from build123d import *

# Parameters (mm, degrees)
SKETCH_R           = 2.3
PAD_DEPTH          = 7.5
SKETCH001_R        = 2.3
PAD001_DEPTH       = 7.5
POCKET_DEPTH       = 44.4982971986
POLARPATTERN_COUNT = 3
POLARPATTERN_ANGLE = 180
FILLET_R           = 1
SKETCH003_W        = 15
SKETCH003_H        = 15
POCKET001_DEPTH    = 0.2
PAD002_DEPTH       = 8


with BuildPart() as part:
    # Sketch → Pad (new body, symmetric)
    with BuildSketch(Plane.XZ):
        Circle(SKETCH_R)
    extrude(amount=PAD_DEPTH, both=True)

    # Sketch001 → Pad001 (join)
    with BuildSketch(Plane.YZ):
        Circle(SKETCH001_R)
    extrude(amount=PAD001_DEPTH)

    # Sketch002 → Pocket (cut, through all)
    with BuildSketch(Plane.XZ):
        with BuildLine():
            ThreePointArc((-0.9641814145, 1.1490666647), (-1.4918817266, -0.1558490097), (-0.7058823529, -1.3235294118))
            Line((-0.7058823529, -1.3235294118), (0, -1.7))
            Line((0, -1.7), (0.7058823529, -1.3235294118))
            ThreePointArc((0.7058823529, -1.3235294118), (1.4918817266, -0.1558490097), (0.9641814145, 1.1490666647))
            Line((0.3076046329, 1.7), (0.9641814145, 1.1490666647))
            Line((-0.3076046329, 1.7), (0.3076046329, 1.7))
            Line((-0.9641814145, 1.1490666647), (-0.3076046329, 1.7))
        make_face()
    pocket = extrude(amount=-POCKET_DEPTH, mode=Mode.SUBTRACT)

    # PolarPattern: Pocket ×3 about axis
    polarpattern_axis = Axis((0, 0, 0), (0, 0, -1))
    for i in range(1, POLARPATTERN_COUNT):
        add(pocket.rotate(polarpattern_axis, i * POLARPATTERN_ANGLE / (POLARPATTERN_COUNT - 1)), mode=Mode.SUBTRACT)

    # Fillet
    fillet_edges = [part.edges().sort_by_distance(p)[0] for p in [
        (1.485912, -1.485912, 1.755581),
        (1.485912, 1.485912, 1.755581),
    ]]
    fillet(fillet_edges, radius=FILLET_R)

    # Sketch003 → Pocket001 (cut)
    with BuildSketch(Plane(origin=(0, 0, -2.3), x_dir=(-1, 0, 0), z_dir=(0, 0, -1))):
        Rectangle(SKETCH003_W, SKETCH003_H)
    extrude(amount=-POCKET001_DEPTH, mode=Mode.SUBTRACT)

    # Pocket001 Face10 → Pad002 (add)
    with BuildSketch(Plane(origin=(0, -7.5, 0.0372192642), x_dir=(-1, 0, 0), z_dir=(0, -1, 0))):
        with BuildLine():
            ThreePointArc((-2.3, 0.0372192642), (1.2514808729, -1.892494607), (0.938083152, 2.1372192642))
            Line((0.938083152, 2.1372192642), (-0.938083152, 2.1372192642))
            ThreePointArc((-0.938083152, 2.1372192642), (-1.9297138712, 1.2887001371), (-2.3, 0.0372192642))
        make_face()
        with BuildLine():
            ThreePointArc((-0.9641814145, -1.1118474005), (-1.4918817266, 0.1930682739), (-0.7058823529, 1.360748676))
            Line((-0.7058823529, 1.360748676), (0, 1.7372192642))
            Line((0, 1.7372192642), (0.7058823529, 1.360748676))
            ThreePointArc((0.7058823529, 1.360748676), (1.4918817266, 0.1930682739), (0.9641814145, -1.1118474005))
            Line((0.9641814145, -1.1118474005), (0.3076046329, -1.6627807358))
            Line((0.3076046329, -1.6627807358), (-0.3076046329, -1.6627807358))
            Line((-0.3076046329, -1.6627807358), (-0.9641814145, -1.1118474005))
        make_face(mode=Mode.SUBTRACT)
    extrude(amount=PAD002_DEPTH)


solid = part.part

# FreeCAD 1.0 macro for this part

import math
import FreeCAD as App
import Part
import Sketcher
from FreeCAD import Vector
Q = App.Units.Quantity


def edges_at(feature, points):
    """Names of the edges that pass closest to the given points."""
    edges = feature.Shape.Edges
    near = lambda p: min(range(len(edges)), key=lambda i: edges[i].distToShape(Part.Vertex(*p))[0])
    return sorted({f"Edge{near(p) + 1}" for p in points})


def add_polygon(sketch, points):
    """Adds a closed chain of lines whose ends are joined by coincident constraints."""
    first, n = sketch.GeometryCount, len(points)
    for a, b in zip(points, points[1:] + points[:1]):
        sketch.addGeometry(Part.LineSegment(App.Vector(*a, 0), App.Vector(*b, 0)), False)
    for i in range(n):
        sketch.addConstraint(Sketcher.Constraint("Coincident", first + i, 2, first + (i + 1) % n, 1))

doc = App.newDocument("Part")
body = doc.addObject("PartDesign::Body", "Body")

sketch1 = doc.addObject("Sketcher::SketchObject", "Sketch")
body.addObject(sketch1)
sketch1.AttachmentSupport = (doc.XZ_Plane, [""])
sketch1.MapMode = "FlatFace"
sketch1.addGeometry(Part.Circle(Vector(0, 0, 0), Vector(0, 0, 1), 2.3), False)
sketch1.addConstraint([
    Sketcher.Constraint("Coincident", 0, 3, -1, 1),
    Sketcher.Constraint("Diameter", 0, Q("4.6 mm")),
])
pad1 = doc.addObject("PartDesign::Pad", "Pad")
body.addObject(pad1)
pad1.Profile = sketch1
pad1.Length = 15
pad1.Midplane = True

sketch2 = doc.addObject("Sketcher::SketchObject", "Sketch001")
body.addObject(sketch2)
sketch2.AttachmentSupport = (doc.YZ_Plane, [""])
sketch2.MapMode = "FlatFace"
sketch2.addGeometry(Part.Circle(Vector(0, 0, 0), Vector(0, 0, 1), 2.3), False)
sketch2.addConstraint([
    Sketcher.Constraint("Coincident", 0, 3, -1, 1),
    Sketcher.Constraint("Diameter", 0, Q("4.6 mm")),
])
pad2 = doc.addObject("PartDesign::Pad", "Pad001")
body.addObject(pad2)
pad2.Profile = sketch2
pad2.Length = 7.5

sketch3 = doc.addObject("Sketcher::SketchObject", "Sketch002")
body.addObject(sketch3)
sketch3.AttachmentSupport = (doc.XZ_Plane, [""])
sketch3.MapMode = "FlatFace"
sketch3.addGeometry([
    Part.ArcOfCircle(Part.Circle(Vector(0, 0, 0), Vector(0, 0, 1), 1.5), math.radians(130), math.radians(242)),
    Part.LineSegment(Vector(-0.7, -1.3, 0), Vector(0, -1.7, 0)),
    Part.LineSegment(Vector(0, -1.7, 0), Vector(0.7, -1.3, 0)),
    Part.ArcOfCircle(Part.Circle(Vector(0, 0, 0), Vector(0, 0, 1), 1.5), math.radians(-62), math.radians(50)),
    Part.LineSegment(Vector(1, 1.1, 0), Vector(0.3, 1.7, 0)),
    Part.LineSegment(Vector(0.3, 1.7, 0), Vector(-0.3, 1.7, 0)),
    Part.LineSegment(Vector(-0.3, 1.7, 0), Vector(-1, 1.1, 0)),
], False)
sketch3.addConstraint([
    Sketcher.Constraint("Tangent", 0, 2, 1, 1),
    Sketcher.Constraint("Coincident", 1, 2, 2, 1),
    Sketcher.Constraint("Tangent", 2, 2, 3, 1),
    Sketcher.Constraint("Tangent", 3, 2, 4, 1),
    Sketcher.Constraint("Coincident", 4, 2, 5, 1),
    Sketcher.Constraint("Coincident", 5, 2, 6, 1),
    Sketcher.Constraint("Tangent", 6, 2, 0, 1),
    Sketcher.Constraint("Horizontal", 5),
    Sketcher.Constraint("Coincident", 0, 3, -1, 1),
    Sketcher.Constraint("Coincident", 3, 3, -1, 1),
    Sketcher.Constraint("Equal", 0, 3),
    Sketcher.Constraint("PointOnObject", 1, 2, -2),
    Sketcher.Constraint("Horizontal", 3, 2, 6, 2),
    Sketcher.Constraint("Radius", 0, Q("1.5 mm")),
    Sketcher.Constraint("Angle", 4, Q("140 deg")),
    Sketcher.Constraint("Distance", 1, Q("0.8 mm")),
    Sketcher.Constraint("DistanceY", -1, 1, 4, 2, Q("1.7 mm")),
])
pocket1 = doc.addObject("PartDesign::Pocket", "Pocket")
body.addObject(pocket1)
pocket1.Profile = sketch3
pocket1.Type = "ThroughAll"
doc.recompute()

polarpattern = doc.addObject("PartDesign::PolarPattern", "PolarPattern")
body.addObject(polarpattern)
polarpattern.Originals = [pocket1]
polarpattern.Axis = (doc.Z_Axis, [""])
polarpattern.Angle = 180
polarpattern.Occurrences = 3
polarpattern.Reversed = True
body.Tip = polarpattern
doc.recompute()

fillet = doc.addObject("PartDesign::Fillet", "Fillet")
body.addObject(fillet)
fillet.Base = (polarpattern, edges_at(polarpattern, [(1.486, -1.486, 1.756), (1.486, 1.486, 1.756)]))
fillet.Radius = 1

sketch4 = doc.addObject("Sketcher::SketchObject", "Sketch003")
body.addObject(sketch4)
sketch4.AttachmentSupport = (doc.XY_Plane, [""])
sketch4.MapMode = "FlatFace"
sketch4.AttachmentOffset = App.Placement(Vector(0, 0, -2.3), App.Rotation())
add_polygon(sketch4, [(8, 8), (8, -8), (-8, -8), (-8, 8)])
sketch4.addConstraint([
    Sketcher.Constraint("Vertical", 0),
    Sketcher.Constraint("Horizontal", 1),
    Sketcher.Constraint("Vertical", 2),
    Sketcher.Constraint("Horizontal", 3),
    Sketcher.Constraint("Symmetric", 0, 2, 2, 2, -1, 1),
    Sketcher.Constraint("Equal", 3, 0),
    Sketcher.Constraint("DistanceX", 1, 2, 1, 1, Q("15 mm")),
])
pocket2 = doc.addObject("PartDesign::Pocket", "Pocket001")
body.addObject(pocket2)
pocket2.Profile = sketch4
pocket2.Length = 0.2
pocket2.Reversed = True

sketch5 = doc.addObject("Sketcher::SketchObject", "Sketch004")
body.addObject(sketch5)
sketch5.AttachmentSupport = (doc.XZ_Plane, [""])
sketch5.MapMode = "FlatFace"
sketch5.AttachmentOffset = App.Placement(Vector(0, 0, 7.5), App.Rotation())
sketch5.addGeometry([
    Part.ArcOfCircle(Part.Circle(Vector(0, 0, 0), Vector(0, 0, 1), 2.3), math.radians(0), math.radians(246)),
    Part.LineSegment(Vector(-0.9, -2.1, 0), Vector(0.9, -2.1, 0)),
    Part.ArcOfCircle(Part.Circle(Vector(0, 0, 0), Vector(0, 0, 1), 2.3), math.radians(-66), math.radians(0)),
    Part.LineSegment(Vector(0.3, 1.7, 0), Vector(1, 1.1, 0)),
    Part.ArcOfCircle(Part.Circle(Vector(0, 0, 0), Vector(0, 0, 1), 1.5), math.radians(-62), math.radians(50)),
    Part.LineSegment(Vector(0.7, -1.3, 0), Vector(0, -1.7, 0)),
    Part.LineSegment(Vector(0, -1.7, 0), Vector(-0.7, -1.3, 0)),
    Part.ArcOfCircle(Part.Circle(Vector(0, 0, 0), Vector(0, 0, 1), 1.5), math.radians(130), math.radians(242)),
    Part.LineSegment(Vector(-1, 1.1, 0), Vector(-0.3, 1.7, 0)),
    Part.LineSegment(Vector(-0.3, 1.7, 0), Vector(0.3, 1.7, 0)),
], False)
sketch5.addConstraint([
    Sketcher.Constraint("Coincident", 0, 2, 1, 1),
    Sketcher.Constraint("Coincident", 1, 2, 2, 1),
    Sketcher.Constraint("Tangent", 2, 2, 0, 1),
    Sketcher.Constraint("Tangent", 3, 2, 4, 2),
    Sketcher.Constraint("Tangent", 4, 1, 5, 1),
    Sketcher.Constraint("Coincident", 5, 2, 6, 1),
    Sketcher.Constraint("Tangent", 6, 2, 7, 2),
    Sketcher.Constraint("Tangent", 7, 1, 8, 1),
    Sketcher.Constraint("Coincident", 8, 2, 9, 1),
    Sketcher.Constraint("Coincident", 9, 2, 3, 1),
    Sketcher.Constraint("Horizontal", 1),
    Sketcher.Constraint("Horizontal", 9),
    Sketcher.Constraint("Coincident", 0, 3, -1, 1),
    Sketcher.Constraint("Coincident", 4, 3, -1, 1),
    Sketcher.Constraint("Coincident", 7, 3, -1, 1),
    Sketcher.Constraint("Equal", 0, 2),
    Sketcher.Constraint("Equal", 4, 7),
    Sketcher.Constraint("PointOnObject", 2, 2, -1),
    Sketcher.Constraint("PointOnObject", 5, 2, -2),
    Sketcher.Constraint("Horizontal", 3, 2, 7, 1),
    Sketcher.Constraint("Radius", 0, Q("2.3 mm")),
    Sketcher.Constraint("Radius", 4, Q("1.5 mm")),
    Sketcher.Constraint("Angle", 3, Q("-40 deg")),
    Sketcher.Constraint("Distance", 5, Q("0.8 mm")),
    Sketcher.Constraint("DistanceY", 0, 2, -1, 1, Q("2.1 mm")),
    Sketcher.Constraint("DistanceY", -1, 1, 8, 2, Q("1.7 mm")),
])
pad3 = doc.addObject("PartDesign::Pad", "Pad002")
body.addObject(pad3)
pad3.Profile = sketch5
pad3.Length = 8

doc.recompute()
